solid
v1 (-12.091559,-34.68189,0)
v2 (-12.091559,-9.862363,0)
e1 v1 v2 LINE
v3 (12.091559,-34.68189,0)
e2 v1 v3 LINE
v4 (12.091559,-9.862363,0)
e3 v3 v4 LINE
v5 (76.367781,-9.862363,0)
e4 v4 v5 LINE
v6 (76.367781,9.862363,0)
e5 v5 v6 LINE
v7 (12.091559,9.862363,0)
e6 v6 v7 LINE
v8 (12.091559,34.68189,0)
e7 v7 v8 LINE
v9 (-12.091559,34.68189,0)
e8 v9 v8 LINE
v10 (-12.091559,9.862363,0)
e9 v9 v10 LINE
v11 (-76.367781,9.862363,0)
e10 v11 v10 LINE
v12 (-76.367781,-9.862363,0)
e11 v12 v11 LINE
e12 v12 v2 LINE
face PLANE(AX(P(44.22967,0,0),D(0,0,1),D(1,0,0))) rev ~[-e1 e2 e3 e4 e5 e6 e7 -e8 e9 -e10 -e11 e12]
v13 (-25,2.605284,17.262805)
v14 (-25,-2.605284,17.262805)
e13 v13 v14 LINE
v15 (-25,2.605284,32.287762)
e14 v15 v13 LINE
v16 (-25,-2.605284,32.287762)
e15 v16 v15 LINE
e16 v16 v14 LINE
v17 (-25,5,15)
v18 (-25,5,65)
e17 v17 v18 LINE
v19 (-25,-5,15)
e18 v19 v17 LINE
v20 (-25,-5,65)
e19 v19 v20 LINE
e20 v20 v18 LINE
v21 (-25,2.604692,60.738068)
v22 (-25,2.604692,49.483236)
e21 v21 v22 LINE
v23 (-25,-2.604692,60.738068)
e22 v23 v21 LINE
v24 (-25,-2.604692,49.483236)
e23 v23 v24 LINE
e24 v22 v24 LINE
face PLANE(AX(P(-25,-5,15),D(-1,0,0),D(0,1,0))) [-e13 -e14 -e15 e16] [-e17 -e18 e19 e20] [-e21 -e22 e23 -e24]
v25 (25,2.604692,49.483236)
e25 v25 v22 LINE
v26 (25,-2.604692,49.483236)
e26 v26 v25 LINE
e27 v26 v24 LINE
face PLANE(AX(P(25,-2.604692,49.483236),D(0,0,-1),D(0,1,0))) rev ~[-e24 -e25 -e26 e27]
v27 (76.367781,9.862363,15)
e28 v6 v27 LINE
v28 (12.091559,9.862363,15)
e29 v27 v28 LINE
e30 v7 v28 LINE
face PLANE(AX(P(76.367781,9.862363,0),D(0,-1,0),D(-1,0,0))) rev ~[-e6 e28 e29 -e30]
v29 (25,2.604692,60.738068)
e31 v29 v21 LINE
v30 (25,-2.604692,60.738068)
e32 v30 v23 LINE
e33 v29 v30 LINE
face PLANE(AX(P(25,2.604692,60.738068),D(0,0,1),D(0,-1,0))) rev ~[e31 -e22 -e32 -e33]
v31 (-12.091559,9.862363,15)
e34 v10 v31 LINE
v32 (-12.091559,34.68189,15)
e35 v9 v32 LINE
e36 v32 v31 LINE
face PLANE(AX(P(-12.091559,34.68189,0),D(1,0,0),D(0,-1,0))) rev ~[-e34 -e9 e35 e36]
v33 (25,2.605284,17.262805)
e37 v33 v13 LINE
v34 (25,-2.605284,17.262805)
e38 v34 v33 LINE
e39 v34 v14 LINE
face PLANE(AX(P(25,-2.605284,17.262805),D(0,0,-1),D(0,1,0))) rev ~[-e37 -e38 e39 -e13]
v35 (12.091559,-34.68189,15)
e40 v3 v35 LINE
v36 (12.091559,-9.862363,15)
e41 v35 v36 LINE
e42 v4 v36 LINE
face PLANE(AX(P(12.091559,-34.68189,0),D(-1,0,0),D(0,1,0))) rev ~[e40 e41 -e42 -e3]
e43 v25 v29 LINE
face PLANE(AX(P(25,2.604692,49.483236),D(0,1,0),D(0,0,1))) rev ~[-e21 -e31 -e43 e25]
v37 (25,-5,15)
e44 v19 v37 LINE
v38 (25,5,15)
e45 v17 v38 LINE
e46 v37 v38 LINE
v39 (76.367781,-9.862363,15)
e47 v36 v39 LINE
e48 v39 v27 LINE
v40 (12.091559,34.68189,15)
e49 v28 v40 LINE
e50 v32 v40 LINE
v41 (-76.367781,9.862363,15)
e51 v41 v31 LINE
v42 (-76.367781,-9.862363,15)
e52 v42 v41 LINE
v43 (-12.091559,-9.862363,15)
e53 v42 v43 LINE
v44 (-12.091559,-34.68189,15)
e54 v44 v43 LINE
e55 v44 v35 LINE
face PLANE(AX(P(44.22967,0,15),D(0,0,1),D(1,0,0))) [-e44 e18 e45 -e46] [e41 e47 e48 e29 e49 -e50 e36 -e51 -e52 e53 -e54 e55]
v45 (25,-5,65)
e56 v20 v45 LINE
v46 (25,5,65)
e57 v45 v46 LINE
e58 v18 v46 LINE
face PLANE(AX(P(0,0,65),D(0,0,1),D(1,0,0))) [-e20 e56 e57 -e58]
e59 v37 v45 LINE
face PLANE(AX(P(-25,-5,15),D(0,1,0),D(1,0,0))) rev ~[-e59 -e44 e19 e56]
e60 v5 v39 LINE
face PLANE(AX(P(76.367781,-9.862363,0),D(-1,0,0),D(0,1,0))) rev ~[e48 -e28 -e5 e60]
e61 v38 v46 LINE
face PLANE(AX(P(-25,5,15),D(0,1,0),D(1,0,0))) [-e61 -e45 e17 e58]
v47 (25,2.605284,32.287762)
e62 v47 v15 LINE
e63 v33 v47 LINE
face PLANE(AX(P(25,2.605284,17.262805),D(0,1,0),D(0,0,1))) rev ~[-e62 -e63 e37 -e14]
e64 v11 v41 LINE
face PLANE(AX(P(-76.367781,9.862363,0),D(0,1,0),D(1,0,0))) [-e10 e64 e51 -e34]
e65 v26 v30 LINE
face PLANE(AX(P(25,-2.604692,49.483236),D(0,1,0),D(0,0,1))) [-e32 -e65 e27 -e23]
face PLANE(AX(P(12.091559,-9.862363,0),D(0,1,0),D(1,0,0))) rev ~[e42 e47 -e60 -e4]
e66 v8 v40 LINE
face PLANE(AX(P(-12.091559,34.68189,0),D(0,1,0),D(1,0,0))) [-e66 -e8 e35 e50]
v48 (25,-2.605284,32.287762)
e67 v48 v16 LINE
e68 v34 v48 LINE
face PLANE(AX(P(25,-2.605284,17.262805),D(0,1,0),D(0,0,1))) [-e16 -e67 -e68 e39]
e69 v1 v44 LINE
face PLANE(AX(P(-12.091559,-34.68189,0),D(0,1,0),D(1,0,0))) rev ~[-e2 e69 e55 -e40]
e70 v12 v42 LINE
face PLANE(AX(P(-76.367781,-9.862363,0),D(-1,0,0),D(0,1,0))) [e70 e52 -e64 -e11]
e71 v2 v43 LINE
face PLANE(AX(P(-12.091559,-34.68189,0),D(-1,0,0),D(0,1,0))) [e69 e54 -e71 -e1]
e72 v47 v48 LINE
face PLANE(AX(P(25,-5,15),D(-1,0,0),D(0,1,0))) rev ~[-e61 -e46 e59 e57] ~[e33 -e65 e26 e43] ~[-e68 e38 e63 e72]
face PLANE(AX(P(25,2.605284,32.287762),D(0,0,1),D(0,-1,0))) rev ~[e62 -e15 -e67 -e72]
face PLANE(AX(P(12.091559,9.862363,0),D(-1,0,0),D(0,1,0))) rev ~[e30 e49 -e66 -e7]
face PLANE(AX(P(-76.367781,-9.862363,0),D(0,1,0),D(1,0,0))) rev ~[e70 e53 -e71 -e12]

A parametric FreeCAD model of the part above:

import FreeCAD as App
import Part
import Sketcher
from FreeCAD import Vector

doc = App.newDocument("Part")
body = doc.addObject("PartDesign::Body", "Body")

# Sketch on XY plane
sketch1 = body.newObject("Sketcher::SketchObject", "Sketch")
sketch1.AttachmentSupport = (doc.getObject("XY_Plane"), [""])
sketch1.MapMode = "FlatFace"
sketch1.addGeometry([
    Part.LineSegment(Vector(76, -10, 0), Vector(76, 10, 0)),  # 0
    Part.LineSegment(Vector(76, 10, 0), Vector(12, 10, 0)),  # 1
    Part.LineSegment(Vector(12, 10, 0), Vector(12, 35, 0)),  # 2
    Part.LineSegment(Vector(12, 35, 0), Vector(-12, 35, 0)),  # 3
    Part.LineSegment(Vector(-12, 35, 0), Vector(-12, 10, 0)),  # 4
    Part.LineSegment(Vector(-12, 10, 0), Vector(-76, 10, 0)),  # 5
    Part.LineSegment(Vector(-76, 10, 0), Vector(-76, -10, 0)),  # 6
    Part.LineSegment(Vector(-76, -10, 0), Vector(-12, -10, 0)),  # 7
    Part.LineSegment(Vector(-12, -10, 0), Vector(-12, -35, 0)),  # 8
    Part.LineSegment(Vector(-12, -35, 0), Vector(12, -35, 0)),  # 9
    Part.LineSegment(Vector(12, -35, 0), Vector(12, -10, 0)),  # 10
    Part.LineSegment(Vector(12, -10, 0), Vector(76, -10, 0)),  # 11
], False)
sketch1.addConstraint([
    Sketcher.Constraint("Coincident", 0, 2, 1, 1),
    Sketcher.Constraint("Coincident", 1, 2, 2, 1),
    Sketcher.Constraint("Coincident", 2, 2, 3, 1),
    Sketcher.Constraint("Coincident", 3, 2, 4, 1),
    Sketcher.Constraint("Coincident", 4, 2, 5, 1),
    Sketcher.Constraint("Coincident", 5, 2, 6, 1),
    Sketcher.Constraint("Coincident", 6, 2, 7, 1),
    Sketcher.Constraint("Coincident", 7, 2, 8, 1),
    Sketcher.Constraint("Coincident", 8, 2, 9, 1),
    Sketcher.Constraint("Coincident", 9, 2, 10, 1),
    Sketcher.Constraint("Coincident", 10, 2, 11, 1),
    Sketcher.Constraint("Coincident", 11, 2, 0, 1),
    Sketcher.Constraint("Vertical", 0),
    Sketcher.Constraint("Horizontal", 1),
    Sketcher.Constraint("Vertical", 2),
    Sketcher.Constraint("Horizontal", 3),
    Sketcher.Constraint("Vertical", 4),
    Sketcher.Constraint("Horizontal", 5),
    Sketcher.Constraint("Vertical", 6),
    Sketcher.Constraint("Horizontal", 7),
    Sketcher.Constraint("Vertical", 8),
    Sketcher.Constraint("Horizontal", 9),
    Sketcher.Constraint("Vertical", 10),
    Sketcher.Constraint("Horizontal", 11),
    Sketcher.Constraint("Symmetric", 0, 2, 6, 2, -1, 1),
    Sketcher.Constraint("Symmetric", 2, 2, 8, 2, -1, 1),
    Sketcher.Constraint("Symmetric", 4, 2, 10, 2, -1, 1),
    Sketcher.Constraint("Symmetric", 1, 2, 4, 2, -2),
    Sketcher.Constraint("DistanceX", 1, 2, 1, 1, 64.276221),
    Sketcher.Constraint("DistanceX", 3, 2, 3, 1, 24.183119),
    Sketcher.Constraint("DistanceY", 0, 1, 0, 2, 19.724727),
    Sketcher.Constraint("DistanceY", 2, 1, 2, 2, 24.819527),
])
pad1 = body.newObject("PartDesign::Pad", "Pad")
pad1.Profile = sketch1
pad1.Length = 15

# Sketch on XY plane
sketch2 = body.newObject("Sketcher::SketchObject", "Sketch001")
sketch2.AttachmentSupport = (doc.getObject("XY_Plane"), [""])
sketch2.MapMode = "FlatFace"
sketch2.AttachmentOffset = App.Placement(Vector(0, 0, 15), App.Rotation())
sketch2.addGeometry([
    Part.LineSegment(Vector(-25, 5, 0), Vector(-25, -5, 0)),
    Part.LineSegment(Vector(-25, -5, 0), Vector(25, -5, 0)),
    Part.LineSegment(Vector(25, -5, 0), Vector(25, 5, 0)),
    Part.LineSegment(Vector(25, 5, 0), Vector(-25, 5, 0)),
], False)
sketch2.addConstraint([
    Sketcher.Constraint("Coincident", 0, 2, 1, 1),
    Sketcher.Constraint("Coincident", 1, 2, 2, 1),
    Sketcher.Constraint("Coincident", 2, 2, 3, 1),
    Sketcher.Constraint("Coincident", 3, 2, 0, 1),
    Sketcher.Constraint("Vertical", 0),
    Sketcher.Constraint("Horizontal", 1),
    Sketcher.Constraint("Vertical", 2),
    Sketcher.Constraint("Horizontal", 3),
    Sketcher.Constraint("Symmetric", 0, 2, 2, 2, -1, 1),
    Sketcher.Constraint("DistanceX", 1, 1, 1, 2, 50.0),
    Sketcher.Constraint("DistanceY", 0, 2, 0, 1, 10.0),
])
pad2 = body.newObject("PartDesign::Pad", "Pad001")
pad2.Profile = sketch2
pad2.Length = 50

# Sketch on YZ plane
sketch3 = body.newObject("Sketcher::SketchObject", "Sketch002")
sketch3.AttachmentSupport = (doc.getObject("YZ_Plane"), [""])
sketch3.MapMode = "FlatFace"
sketch3.AttachmentOffset = App.Placement(Vector(0, 0, 25), App.Rotation())
sketch3.addGeometry([
    Part.LineSegment(Vector(3, 17, 0), Vector(3, 32, 0)),  # 0
    Part.LineSegment(Vector(3, 32, 0), Vector(-3, 32, 0)),  # 1
    Part.LineSegment(Vector(-3, 32, 0), Vector(-3, 17, 0)),  # 2
    Part.LineSegment(Vector(-3, 17, 0), Vector(3, 17, 0)),  # 3
    Part.LineSegment(Vector(-3, 61, 0), Vector(-3, 49, 0)),  # 4
    Part.LineSegment(Vector(-3, 49, 0), Vector(3, 49, 0)),  # 5
    Part.LineSegment(Vector(3, 49, 0), Vector(3, 61, 0)),  # 6
    Part.LineSegment(Vector(3, 61, 0), Vector(-3, 61, 0)),  # 7
], False)
sketch3.addConstraint([
    Sketcher.Constraint("Coincident", 0, 2, 1, 1),
    Sketcher.Constraint("Coincident", 1, 2, 2, 1),
    Sketcher.Constraint("Coincident", 2, 2, 3, 1),
    Sketcher.Constraint("Coincident", 3, 2, 0, 1),
    Sketcher.Constraint("Coincident", 4, 2, 5, 1),
    Sketcher.Constraint("Coincident", 5, 2, 6, 1),
    Sketcher.Constraint("Coincident", 6, 2, 7, 1),
    Sketcher.Constraint("Coincident", 7, 2, 4, 1),
    Sketcher.Constraint("Vertical", 0),
    Sketcher.Constraint("Horizontal", 1),
    Sketcher.Constraint("Vertical", 2),
    Sketcher.Constraint("Horizontal", 3),
    Sketcher.Constraint("Vertical", 4),
    Sketcher.Constraint("Horizontal", 5),
    Sketcher.Constraint("Vertical", 6),
    Sketcher.Constraint("Horizontal", 7),
    Sketcher.Constraint("DistanceX", 1, 2, 1, 1, 5.210568),
    Sketcher.Constraint("DistanceX", 5, 1, 5, 2, 5.209384),
    Sketcher.Constraint("DistanceY", 0, 1, 0, 2, 15.024956),
    Sketcher.Constraint("DistanceY", 4, 2, 4, 1, 11.254832),
    Sketcher.Constraint("DistanceY", -1, 1, 0, 2, 32.287762),
    Sketcher.Constraint("DistanceX", 4, 2, -1, 1, 2.604692),
    Sketcher.Constraint("DistanceY", -1, 1, 6, 2, 60.738068),
    Sketcher.Constraint("DistanceX", -1, 1, 0, 2, 2.605284),
])
pocket1 = body.newObject("PartDesign::Pocket", "Pocket")
pocket1.Profile = sketch3
pocket1.Length = 100

doc.recompute()
